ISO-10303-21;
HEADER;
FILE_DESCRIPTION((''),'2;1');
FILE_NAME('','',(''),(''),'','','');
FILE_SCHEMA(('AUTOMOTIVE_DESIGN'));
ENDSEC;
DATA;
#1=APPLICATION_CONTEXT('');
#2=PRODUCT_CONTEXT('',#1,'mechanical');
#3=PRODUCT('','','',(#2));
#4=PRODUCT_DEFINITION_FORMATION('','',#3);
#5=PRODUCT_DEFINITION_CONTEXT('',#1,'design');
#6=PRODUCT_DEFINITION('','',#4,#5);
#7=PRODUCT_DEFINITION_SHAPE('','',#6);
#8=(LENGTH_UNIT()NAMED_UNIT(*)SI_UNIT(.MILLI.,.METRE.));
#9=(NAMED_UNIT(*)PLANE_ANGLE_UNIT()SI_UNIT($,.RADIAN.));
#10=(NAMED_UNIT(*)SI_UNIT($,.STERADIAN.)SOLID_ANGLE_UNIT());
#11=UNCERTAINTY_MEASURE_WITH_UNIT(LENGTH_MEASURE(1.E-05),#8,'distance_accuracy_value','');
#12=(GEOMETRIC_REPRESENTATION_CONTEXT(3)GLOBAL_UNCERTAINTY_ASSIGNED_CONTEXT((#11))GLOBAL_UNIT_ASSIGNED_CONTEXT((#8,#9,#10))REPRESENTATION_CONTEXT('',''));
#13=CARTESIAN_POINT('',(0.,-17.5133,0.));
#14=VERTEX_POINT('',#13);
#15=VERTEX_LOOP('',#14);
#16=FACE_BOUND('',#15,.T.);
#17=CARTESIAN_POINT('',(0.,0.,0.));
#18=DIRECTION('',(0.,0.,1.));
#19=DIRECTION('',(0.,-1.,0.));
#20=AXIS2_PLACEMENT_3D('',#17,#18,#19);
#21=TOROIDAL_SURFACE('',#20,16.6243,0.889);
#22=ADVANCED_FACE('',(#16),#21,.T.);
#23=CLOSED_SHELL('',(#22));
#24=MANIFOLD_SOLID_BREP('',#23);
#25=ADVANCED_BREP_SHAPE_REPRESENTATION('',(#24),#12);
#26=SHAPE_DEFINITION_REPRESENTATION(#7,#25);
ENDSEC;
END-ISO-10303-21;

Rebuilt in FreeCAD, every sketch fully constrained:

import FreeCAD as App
import Part
import Sketcher
Q = App.Units.Quantity

doc = App.newDocument("Part")
body = doc.addObject("PartDesign::Body", "Body")

# Sketch on YZ plane
sketch1 = body.newObject("Sketcher::SketchObject", "Sketch")
sketch1.AttachmentSupport = (doc.getObject("YZ_Plane"), [""])
sketch1.MapMode = "FlatFace"
sketch1.addGeometry(Part.Circle(App.Vector(16.6, 0, 0), App.Vector(0, 0, 1), 0.9), False)
sketch1.addConstraint([
    Sketcher.Constraint("PointOnObject", 0, 3, -1),
    Sketcher.Constraint("Diameter", 0, Q("0.07 in")),
    Sketcher.Constraint("DistanceX", -1, 1, 0, 3, Q("0.6545 in")),
])
revolution = body.newObject("PartDesign::Revolution", "Revolution")
revolution.Profile = sketch1
revolution.ReferenceAxis = (sketch1, ["V_Axis"])
revolution.Angle = 360

doc.recompute()
